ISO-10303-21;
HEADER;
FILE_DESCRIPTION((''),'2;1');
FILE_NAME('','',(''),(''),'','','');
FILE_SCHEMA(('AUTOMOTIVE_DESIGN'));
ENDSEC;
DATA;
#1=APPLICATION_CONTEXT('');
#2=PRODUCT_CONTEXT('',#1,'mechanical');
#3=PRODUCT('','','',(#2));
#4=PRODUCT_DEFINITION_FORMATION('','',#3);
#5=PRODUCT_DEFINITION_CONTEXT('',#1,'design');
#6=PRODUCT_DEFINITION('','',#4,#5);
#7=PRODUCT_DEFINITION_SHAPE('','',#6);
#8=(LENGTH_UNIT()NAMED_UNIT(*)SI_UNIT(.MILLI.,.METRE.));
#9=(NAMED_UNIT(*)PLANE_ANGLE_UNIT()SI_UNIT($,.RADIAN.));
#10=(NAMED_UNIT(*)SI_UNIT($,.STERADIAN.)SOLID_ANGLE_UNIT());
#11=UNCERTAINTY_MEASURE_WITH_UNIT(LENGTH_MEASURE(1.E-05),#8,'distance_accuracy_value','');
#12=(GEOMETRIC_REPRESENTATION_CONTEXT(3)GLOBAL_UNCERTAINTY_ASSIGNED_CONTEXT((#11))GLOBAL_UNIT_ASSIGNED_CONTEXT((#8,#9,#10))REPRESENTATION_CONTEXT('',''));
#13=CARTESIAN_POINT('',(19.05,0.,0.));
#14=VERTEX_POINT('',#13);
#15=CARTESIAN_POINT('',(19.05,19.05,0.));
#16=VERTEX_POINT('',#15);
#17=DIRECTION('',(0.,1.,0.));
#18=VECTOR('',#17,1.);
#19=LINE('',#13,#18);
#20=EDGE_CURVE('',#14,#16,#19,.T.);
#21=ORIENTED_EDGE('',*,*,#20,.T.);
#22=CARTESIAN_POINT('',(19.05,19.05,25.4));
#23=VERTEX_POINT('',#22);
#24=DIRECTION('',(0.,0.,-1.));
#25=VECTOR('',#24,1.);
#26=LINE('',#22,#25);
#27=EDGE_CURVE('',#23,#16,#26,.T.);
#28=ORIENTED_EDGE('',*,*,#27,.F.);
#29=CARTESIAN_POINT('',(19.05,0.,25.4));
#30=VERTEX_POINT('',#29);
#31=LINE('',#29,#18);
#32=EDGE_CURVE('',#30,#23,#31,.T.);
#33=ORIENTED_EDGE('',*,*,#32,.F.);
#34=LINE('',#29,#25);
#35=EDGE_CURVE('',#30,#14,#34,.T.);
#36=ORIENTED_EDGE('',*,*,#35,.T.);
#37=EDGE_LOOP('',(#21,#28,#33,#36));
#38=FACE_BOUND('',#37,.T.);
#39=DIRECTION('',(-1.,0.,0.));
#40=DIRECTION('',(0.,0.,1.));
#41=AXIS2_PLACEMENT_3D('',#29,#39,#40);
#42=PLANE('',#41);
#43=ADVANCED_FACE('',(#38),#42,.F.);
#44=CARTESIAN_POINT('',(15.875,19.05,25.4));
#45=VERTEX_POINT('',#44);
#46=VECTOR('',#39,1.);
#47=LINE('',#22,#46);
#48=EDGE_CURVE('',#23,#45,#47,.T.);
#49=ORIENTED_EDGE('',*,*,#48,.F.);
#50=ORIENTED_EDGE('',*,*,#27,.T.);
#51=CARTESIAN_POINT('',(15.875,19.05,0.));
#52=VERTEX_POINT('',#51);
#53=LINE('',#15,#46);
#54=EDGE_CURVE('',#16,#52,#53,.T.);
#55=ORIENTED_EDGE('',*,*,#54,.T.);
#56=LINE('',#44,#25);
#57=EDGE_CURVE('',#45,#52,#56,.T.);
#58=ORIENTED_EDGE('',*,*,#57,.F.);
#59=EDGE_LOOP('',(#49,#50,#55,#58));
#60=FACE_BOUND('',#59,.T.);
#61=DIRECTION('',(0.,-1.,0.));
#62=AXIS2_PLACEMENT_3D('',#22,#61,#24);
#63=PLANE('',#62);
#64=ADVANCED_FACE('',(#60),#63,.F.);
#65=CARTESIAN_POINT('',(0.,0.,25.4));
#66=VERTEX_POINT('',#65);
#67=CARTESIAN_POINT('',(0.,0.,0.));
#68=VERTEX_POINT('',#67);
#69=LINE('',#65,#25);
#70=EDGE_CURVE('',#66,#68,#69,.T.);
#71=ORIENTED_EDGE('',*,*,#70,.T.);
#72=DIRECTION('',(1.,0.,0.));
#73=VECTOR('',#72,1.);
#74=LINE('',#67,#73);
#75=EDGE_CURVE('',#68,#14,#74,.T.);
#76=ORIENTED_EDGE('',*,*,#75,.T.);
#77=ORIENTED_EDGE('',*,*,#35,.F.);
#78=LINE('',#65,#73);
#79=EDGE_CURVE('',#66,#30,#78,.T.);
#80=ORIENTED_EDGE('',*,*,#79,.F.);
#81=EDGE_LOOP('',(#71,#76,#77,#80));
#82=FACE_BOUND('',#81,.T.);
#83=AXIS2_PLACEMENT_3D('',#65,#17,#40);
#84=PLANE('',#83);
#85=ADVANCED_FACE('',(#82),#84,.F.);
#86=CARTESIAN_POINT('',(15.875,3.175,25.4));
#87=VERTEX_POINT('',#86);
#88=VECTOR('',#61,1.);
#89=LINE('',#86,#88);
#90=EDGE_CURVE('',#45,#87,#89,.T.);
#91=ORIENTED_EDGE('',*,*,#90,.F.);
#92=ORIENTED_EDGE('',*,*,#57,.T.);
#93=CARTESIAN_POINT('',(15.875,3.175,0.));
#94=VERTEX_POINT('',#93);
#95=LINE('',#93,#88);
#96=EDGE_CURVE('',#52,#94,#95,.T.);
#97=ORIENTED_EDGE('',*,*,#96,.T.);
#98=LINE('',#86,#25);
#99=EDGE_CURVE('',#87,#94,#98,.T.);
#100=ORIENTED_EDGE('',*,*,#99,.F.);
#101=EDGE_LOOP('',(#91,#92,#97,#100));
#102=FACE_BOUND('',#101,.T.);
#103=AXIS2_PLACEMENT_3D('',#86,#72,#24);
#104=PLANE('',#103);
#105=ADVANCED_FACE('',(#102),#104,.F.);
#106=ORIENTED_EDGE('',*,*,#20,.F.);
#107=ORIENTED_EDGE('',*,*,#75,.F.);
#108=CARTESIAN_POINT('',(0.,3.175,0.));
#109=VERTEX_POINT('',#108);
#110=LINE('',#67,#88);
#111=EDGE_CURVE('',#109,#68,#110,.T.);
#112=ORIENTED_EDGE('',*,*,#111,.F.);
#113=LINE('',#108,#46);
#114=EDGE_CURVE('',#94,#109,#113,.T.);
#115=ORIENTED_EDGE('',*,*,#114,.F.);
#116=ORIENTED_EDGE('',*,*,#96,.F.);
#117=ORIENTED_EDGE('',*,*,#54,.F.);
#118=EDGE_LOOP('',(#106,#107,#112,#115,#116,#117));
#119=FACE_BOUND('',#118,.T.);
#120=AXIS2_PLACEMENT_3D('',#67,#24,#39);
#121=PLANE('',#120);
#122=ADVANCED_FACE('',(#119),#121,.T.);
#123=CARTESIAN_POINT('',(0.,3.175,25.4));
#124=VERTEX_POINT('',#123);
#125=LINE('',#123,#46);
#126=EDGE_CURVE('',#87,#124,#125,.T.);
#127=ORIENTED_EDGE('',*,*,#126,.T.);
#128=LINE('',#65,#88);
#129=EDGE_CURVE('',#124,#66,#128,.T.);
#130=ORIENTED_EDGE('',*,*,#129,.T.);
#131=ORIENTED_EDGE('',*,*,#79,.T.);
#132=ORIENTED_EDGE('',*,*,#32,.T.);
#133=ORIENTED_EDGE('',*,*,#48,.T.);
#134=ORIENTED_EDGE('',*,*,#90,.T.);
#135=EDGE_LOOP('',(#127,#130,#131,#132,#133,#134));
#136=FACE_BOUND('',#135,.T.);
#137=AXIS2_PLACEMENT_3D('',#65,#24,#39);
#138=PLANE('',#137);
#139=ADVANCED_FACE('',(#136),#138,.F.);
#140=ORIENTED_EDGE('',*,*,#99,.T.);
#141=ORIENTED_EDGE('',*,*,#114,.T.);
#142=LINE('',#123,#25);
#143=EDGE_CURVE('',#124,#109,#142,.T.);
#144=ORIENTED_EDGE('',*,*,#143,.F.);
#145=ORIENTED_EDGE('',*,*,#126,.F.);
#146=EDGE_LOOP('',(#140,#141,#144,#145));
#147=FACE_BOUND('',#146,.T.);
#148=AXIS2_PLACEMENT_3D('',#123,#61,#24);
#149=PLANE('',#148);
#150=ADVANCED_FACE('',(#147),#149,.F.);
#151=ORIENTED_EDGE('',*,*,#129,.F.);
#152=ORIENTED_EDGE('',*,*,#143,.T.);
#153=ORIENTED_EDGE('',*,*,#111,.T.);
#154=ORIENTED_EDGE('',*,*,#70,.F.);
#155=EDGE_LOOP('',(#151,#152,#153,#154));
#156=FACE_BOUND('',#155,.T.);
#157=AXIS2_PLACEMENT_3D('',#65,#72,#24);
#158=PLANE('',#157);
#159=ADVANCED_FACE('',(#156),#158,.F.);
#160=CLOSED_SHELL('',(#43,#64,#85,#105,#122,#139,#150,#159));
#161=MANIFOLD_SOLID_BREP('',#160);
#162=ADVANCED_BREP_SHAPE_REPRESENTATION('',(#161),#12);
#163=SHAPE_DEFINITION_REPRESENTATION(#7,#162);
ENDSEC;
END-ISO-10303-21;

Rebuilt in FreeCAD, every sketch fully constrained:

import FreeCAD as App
import Part
import Sketcher

V = App.Vector
Q = App.Units.Quantity


def add_polygon(sketch, points):
    """Adds a closed chain of lines whose ends are joined by coincident constraints."""
    first, n = sketch.GeometryCount, len(points)
    for a, b in zip(points, points[1:] + points[:1]):
        sketch.addGeometry(Part.LineSegment(App.Vector(*a, 0), App.Vector(*b, 0)), False)
    for i in range(n):
        sketch.addConstraint(Sketcher.Constraint("Coincident", first + i, 2, first + (i + 1) % n, 1))

doc = App.newDocument("Part")
body = doc.addObject("PartDesign::Body", "Body")

sketch1 = doc.addObject("Sketcher::SketchObject", "Sketch")
body.addObject(sketch1)
sketch1.AttachmentSupport = (doc.XY_Plane, [""])
sketch1.MapMode = "FlatFace"
add_polygon(sketch1, [(0, 0), (19.1, 0), (19.1, 19.1), (15.9, 19.1), (15.9, 3.2), (0, 3.2)])
sketch1.addConstraint([
    Sketcher.Constraint("Horizontal", 0),
    Sketcher.Constraint("Vertical", 1),
    Sketcher.Constraint("Horizontal", 2),
    Sketcher.Constraint("Vertical", 3),
    Sketcher.Constraint("Horizontal", 4),
    Sketcher.Constraint("Vertical", 5),
    Sketcher.Constraint("Coincident", 5, 2, -1, 1),
    Sketcher.Constraint("Equal", 0, 1),
    Sketcher.Constraint("Equal", 4, 3),
    Sketcher.Constraint("DistanceX", 0, 1, 0, 2, Q("0.75 in")),
    Sketcher.Constraint("DistanceX", 2, 2, 2, 1, Q("0.125 in")),
])
pad1 = doc.addObject("PartDesign::Pad", "Pad")
body.addObject(pad1)
pad1.Profile = sketch1
pad1.Length = Q("1 in")

doc.recompute()
